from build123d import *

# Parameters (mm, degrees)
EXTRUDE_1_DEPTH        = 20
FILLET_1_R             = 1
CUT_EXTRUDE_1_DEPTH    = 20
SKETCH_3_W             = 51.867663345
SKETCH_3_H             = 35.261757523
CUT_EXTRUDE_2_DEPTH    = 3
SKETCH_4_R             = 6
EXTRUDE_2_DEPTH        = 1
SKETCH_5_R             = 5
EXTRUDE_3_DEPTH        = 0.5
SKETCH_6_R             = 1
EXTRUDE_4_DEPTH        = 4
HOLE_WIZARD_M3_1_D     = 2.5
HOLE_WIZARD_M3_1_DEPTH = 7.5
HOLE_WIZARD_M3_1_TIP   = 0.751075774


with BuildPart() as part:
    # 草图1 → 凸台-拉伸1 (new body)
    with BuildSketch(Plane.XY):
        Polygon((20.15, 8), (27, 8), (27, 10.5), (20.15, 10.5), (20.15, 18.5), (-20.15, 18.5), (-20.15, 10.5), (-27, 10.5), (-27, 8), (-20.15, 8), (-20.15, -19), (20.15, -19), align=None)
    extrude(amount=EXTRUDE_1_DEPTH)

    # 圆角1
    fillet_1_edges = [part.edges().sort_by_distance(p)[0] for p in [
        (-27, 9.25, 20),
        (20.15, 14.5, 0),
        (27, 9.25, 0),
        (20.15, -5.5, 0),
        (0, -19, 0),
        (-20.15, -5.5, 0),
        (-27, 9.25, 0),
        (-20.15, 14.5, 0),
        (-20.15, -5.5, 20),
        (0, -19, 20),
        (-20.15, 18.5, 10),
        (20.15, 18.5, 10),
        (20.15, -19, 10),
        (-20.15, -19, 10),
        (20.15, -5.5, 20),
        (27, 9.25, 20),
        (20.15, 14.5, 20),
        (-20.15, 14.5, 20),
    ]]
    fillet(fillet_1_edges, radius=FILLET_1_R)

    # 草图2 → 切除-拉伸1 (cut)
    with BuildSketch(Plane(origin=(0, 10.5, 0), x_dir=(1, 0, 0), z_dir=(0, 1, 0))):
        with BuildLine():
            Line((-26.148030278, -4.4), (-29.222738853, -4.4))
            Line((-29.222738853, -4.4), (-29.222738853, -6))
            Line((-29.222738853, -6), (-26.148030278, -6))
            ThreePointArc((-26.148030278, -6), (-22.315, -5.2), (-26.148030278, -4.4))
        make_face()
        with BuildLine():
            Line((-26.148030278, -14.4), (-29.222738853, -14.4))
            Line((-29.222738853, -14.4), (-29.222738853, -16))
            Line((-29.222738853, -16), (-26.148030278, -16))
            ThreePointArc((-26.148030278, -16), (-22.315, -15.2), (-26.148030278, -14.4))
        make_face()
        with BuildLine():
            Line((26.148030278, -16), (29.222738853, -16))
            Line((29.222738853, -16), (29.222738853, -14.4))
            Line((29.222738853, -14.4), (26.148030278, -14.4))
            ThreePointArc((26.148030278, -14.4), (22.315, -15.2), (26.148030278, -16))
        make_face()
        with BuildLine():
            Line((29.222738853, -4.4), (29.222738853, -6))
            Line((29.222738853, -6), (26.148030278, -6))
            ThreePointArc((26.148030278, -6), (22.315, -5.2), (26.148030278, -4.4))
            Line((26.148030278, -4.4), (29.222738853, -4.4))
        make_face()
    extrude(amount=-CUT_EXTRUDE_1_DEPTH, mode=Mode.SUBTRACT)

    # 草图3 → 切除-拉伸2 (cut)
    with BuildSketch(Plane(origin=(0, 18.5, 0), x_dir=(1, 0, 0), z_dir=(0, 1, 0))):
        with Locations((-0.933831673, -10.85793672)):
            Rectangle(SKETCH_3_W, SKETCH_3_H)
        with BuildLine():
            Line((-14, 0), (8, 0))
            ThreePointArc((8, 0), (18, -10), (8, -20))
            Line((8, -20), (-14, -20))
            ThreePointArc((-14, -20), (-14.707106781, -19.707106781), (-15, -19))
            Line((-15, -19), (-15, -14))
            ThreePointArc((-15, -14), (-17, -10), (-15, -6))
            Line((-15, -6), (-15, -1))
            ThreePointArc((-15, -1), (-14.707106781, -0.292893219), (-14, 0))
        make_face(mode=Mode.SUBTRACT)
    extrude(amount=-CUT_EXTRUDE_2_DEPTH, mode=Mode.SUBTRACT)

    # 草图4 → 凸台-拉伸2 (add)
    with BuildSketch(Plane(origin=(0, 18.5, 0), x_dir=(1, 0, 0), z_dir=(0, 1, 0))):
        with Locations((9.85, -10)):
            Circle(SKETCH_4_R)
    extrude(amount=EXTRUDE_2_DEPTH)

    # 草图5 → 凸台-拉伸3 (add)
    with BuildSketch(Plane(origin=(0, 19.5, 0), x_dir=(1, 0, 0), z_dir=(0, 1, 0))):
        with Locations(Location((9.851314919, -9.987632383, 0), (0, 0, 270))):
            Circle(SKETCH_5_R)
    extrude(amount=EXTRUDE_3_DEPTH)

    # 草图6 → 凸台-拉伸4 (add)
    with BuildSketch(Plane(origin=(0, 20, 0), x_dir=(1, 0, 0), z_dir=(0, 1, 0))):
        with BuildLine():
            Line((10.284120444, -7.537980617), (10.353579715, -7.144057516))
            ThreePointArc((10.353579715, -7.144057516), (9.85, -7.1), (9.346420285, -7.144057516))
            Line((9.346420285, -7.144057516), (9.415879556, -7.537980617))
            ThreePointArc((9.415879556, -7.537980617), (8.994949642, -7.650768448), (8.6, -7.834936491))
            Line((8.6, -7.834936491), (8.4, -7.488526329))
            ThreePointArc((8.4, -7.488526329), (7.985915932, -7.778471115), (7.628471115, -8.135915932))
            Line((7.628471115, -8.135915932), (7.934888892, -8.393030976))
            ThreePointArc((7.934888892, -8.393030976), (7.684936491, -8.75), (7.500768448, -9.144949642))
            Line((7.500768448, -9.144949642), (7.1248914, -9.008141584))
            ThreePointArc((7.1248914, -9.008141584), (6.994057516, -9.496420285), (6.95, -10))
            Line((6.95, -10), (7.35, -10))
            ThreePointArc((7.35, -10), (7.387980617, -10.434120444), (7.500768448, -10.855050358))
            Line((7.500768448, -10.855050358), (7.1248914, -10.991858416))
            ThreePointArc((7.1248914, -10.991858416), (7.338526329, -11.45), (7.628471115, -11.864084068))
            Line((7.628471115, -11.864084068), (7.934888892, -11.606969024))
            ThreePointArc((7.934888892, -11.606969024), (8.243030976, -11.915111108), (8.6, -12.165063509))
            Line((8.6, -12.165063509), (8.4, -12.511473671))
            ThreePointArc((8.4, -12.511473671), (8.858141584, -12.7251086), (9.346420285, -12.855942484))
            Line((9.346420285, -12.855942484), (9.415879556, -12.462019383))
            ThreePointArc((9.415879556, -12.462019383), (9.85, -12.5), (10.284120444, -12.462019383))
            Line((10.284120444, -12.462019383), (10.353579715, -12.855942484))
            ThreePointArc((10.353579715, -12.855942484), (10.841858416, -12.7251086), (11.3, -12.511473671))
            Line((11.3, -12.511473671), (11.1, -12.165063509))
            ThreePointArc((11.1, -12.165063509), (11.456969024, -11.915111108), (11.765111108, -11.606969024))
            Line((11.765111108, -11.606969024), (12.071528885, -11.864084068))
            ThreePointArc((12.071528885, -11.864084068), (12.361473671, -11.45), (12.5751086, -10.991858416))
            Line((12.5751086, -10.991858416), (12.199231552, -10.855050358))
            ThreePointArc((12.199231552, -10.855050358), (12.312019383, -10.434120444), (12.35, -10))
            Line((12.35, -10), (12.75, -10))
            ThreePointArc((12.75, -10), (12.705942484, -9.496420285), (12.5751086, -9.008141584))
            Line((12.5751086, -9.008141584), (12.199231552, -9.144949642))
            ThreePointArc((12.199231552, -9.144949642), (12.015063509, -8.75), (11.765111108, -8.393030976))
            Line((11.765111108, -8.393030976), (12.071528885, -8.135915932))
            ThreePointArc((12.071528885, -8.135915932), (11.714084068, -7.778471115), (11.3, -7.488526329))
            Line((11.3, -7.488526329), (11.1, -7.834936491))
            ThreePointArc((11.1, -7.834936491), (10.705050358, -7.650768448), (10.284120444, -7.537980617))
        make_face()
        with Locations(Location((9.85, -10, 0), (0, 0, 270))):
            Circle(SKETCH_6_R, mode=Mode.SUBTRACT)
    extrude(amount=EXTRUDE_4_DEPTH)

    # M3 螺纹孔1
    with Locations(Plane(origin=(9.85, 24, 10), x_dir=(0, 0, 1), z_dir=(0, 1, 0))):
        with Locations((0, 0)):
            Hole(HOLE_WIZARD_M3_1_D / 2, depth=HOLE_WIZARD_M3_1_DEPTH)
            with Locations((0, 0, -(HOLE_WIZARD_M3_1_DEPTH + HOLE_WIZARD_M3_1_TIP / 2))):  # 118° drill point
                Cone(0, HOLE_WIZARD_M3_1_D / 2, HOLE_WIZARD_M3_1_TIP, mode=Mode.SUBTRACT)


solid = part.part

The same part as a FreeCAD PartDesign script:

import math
import FreeCAD as App
import Part
import Sketcher
from FreeCAD import Vector
Q = App.Units.Quantity


def edges_at(feature, points):
    """Names of the edges that pass closest to the given points."""
    edges = feature.Shape.Edges
    near = lambda p: min(range(len(edges)), key=lambda i: edges[i].distToShape(Part.Vertex(*p))[0])
    return sorted({f"Edge{near(p) + 1}" for p in points})


def add_polygon(sketch, points):
    """Adds a closed chain of lines whose ends are joined by coincident constraints."""
    first, n = sketch.GeometryCount, len(points)
    for a, b in zip(points, points[1:] + points[:1]):
        sketch.addGeometry(Part.LineSegment(App.Vector(*a, 0), App.Vector(*b, 0)), False)
    for i in range(n):
        sketch.addConstraint(Sketcher.Constraint("Coincident", first + i, 2, first + (i + 1) % n, 1))

doc = App.newDocument("Part")
body = doc.addObject("PartDesign::Body", "Body")

# Sketch on XY plane
sketch1 = body.newObject("Sketcher::SketchObject", "Sketch")
sketch1.AttachmentSupport = (doc.getObject("XY_Plane"), [""])
sketch1.MapMode = "FlatFace"
add_polygon(sketch1, [(20.15, 8), (27, 8), (27, 10.5), (20.15, 10.5), (20.15, 18.5), (-20.15, 18.5), (-20.15, 10.5), (-27, 10.5), (-27, 8), (-20.15, 8), (-20.15, -19), (20.15, -19)])  # lines 0-11
sketch1.addConstraint(Sketcher.Constraint("Horizontal", 0))
sketch1.addConstraint(Sketcher.Constraint("Vertical", 1))
sketch1.addConstraint(Sketcher.Constraint("Horizontal", 2))
sketch1.addConstraint(Sketcher.Constraint("Vertical", 3))
sketch1.addConstraint(Sketcher.Constraint("Horizontal", 4))
sketch1.addConstraint(Sketcher.Constraint("Vertical", 5))
sketch1.addConstraint(Sketcher.Constraint("Horizontal", 6))
sketch1.addConstraint(Sketcher.Constraint("Vertical", 7))
sketch1.addConstraint(Sketcher.Constraint("Horizontal", 8))
sketch1.addConstraint(Sketcher.Constraint("Vertical", 9))
sketch1.addConstraint(Sketcher.Constraint("Horizontal", 10))
sketch1.addConstraint(Sketcher.Constraint("Vertical", 11))
sketch1.addConstraint(Sketcher.Constraint("Symmetric", 2, 2, 5, 2, -2))
sketch1.addConstraint(Sketcher.Constraint("Symmetric", 0, 2, 7, 2, -2))
sketch1.addConstraint(Sketcher.Constraint("Vertical", 5, 2, 8, 2))
sketch1.addConstraint(Sketcher.Constraint("Vertical", 3, 2, 10, 2))
sketch1.addConstraint(Sketcher.Constraint("DistanceY", 3, 1, 3, 2, 8.0))
sketch1.addConstraint(Sketcher.Constraint("DistanceY", 9, 2, 9, 1, 27.0))
sketch1.addConstraint(Sketcher.Constraint("DistanceX", 4, 2, 4, 1, 40.3))
sketch1.addConstraint(Sketcher.Constraint("DistanceY", 1, 1, 1, 2, 2.5))
sketch1.addConstraint(Sketcher.Constraint("DistanceX", -1, 1, 0, 2, 27.0))
sketch1.addConstraint(Sketcher.Constraint("DistanceY", -1, 1, 0, 2, 8.0))
pad1 = body.newObject("PartDesign::Pad", "Pad")
pad1.Profile = sketch1
pad1.Length = 20
doc.recompute()

fillet = body.newObject("PartDesign::Fillet", "Fillet")
fillet.Base = (pad1, edges_at(pad1, [
    (-27, 9.25, 20),
    (20.15, 14.5, 0),
    (27, 9.25, 0),
    (20.15, -5.5, 0),
    (0, -19, 0),
    (-20.15, -5.5, 0),
    (-27, 9.25, 0),
    (-20.15, 14.5, 0),
    (-20.15, -5.5, 20),
    (0, -19, 20),
    (-20.15, 18.5, 10),
    (20.15, 18.5, 10),
    (20.15, -19, 10),
    (-20.15, -19, 10),
    (20.15, -5.5, 20),
    (27, 9.25, 20),
    (20.15, 14.5, 20),
    (-20.15, 14.5, 20),
]))
fillet.Radius = 1

# Sketch on XZ plane
sketch2 = body.newObject("Sketcher::SketchObject", "Sketch001")
sketch2.AttachmentSupport = (doc.getObject("XZ_Plane"), [""])
sketch2.MapMode = "FlatFace"
sketch2.AttachmentOffset = App.Placement(Vector(0, 0, -10.5), App.Rotation())
sketch2.addGeometry(Part.LineSegment(Vector(-26.14803, 4.4, 0), Vector(-29.222739, 4.4, 0)), False)
sketch2.addGeometry(Part.LineSegment(Vector(-29.222739, 4.4, 0), Vector(-29.222739, 6, 0)), False)
sketch2.addGeometry(Part.LineSegment(Vector(-29.222739, 6, 0), Vector(-26.14803, 6, 0)), False)
sketch2.addGeometry(Part.ArcOfCircle(Part.Circle(Vector(-24.315, 5.2, 0), Vector(0, 0, 1), 2), math.radians(-156.421822), math.radians(156.421822)), False)
sketch2.addGeometry(Part.LineSegment(Vector(-26.14803, 14.4, 0), Vector(-29.222739, 14.4, 0)), False)
sketch2.addGeometry(Part.LineSegment(Vector(-29.222739, 14.4, 0), Vector(-29.222739, 16, 0)), False)
sketch2.addGeometry(Part.LineSegment(Vector(-29.222739, 16, 0), Vector(-26.14803, 16, 0)), False)
sketch2.addGeometry(Part.ArcOfCircle(Part.Circle(Vector(-24.315, 15.2, 0), Vector(0, 0, 1), 2), math.radians(-156.421822), math.radians(156.421822)), False)
sketch2.addGeometry(Part.LineSegment(Vector(26.14803, 16, 0), Vector(29.222739, 16, 0)), False)
sketch2.addGeometry(Part.LineSegment(Vector(29.222739, 16, 0), Vector(29.222739, 14.4, 0)), False)
sketch2.addGeometry(Part.LineSegment(Vector(29.222739, 14.4, 0), Vector(26.14803, 14.4, 0)), False)
sketch2.addGeometry(Part.ArcOfCircle(Part.Circle(Vector(24.315, 15.2, 0), Vector(0, 0, 1), 2), math.radians(23.578178), math.radians(336.421822)), False)
sketch2.addGeometry(Part.LineSegment(Vector(29.222739, 6, 0), Vector(29.222739, 4.4, 0)), False)
sketch2.addGeometry(Part.LineSegment(Vector(29.222739, 4.4, 0), Vector(26.14803, 4.4, 0)), False)
sketch2.addGeometry(Part.ArcOfCircle(Part.Circle(Vector(24.315, 5.2, 0), Vector(0, 0, 1), 2), math.radians(23.578178), math.radians(336.421822)), False)
sketch2.addGeometry(Part.LineSegment(Vector(26.14803, 6, 0), Vector(29.222739, 6, 0)), False)
sketch2.addConstraint(Sketcher.Constraint("Coincident", 0, 2, 1, 1))
sketch2.addConstraint(Sketcher.Constraint("Coincident", 1, 2, 2, 1))
sketch2.addConstraint(Sketcher.Constraint("Coincident", 2, 2, 3, 2))
sketch2.addConstraint(Sketcher.Constraint("Coincident", 3, 1, 0, 1))
sketch2.addConstraint(Sketcher.Constraint("Coincident", 4, 2, 5, 1))
sketch2.addConstraint(Sketcher.Constraint("Coincident", 5, 2, 6, 1))
sketch2.addConstraint(Sketcher.Constraint("Coincident", 6, 2, 7, 2))
sketch2.addConstraint(Sketcher.Constraint("Coincident", 7, 1, 4, 1))
sketch2.addConstraint(Sketcher.Constraint("Coincident", 8, 2, 9, 1))
sketch2.addConstraint(Sketcher.Constraint("Coincident", 9, 2, 10, 1))
sketch2.addConstraint(Sketcher.Constraint("Coincident", 10, 2, 11, 2))
sketch2.addConstraint(Sketcher.Constraint("Coincident", 11, 1, 8, 1))
sketch2.addConstraint(Sketcher.Constraint("Coincident", 12, 2, 13, 1))
sketch2.addConstraint(Sketcher.Constraint("Coincident", 13, 2, 14, 2))
sketch2.addConstraint(Sketcher.Constraint("Coincident", 14, 1, 15, 1))
sketch2.addConstraint(Sketcher.Constraint("Coincident", 15, 2, 12, 1))
sketch2.addConstraint(Sketcher.Constraint("Horizontal", 0))
sketch2.addConstraint(Sketcher.Constraint("Vertical", 1))
sketch2.addConstraint(Sketcher.Constraint("Horizontal", 2))
sketch2.addConstraint(Sketcher.Constraint("Horizontal", 4))
sketch2.addConstraint(Sketcher.Constraint("Vertical", 5))
sketch2.addConstraint(Sketcher.Constraint("Horizontal", 6))
sketch2.addConstraint(Sketcher.Constraint("Horizontal", 8))
sketch2.addConstraint(Sketcher.Constraint("Vertical", 9))
sketch2.addConstraint(Sketcher.Constraint("Horizontal", 10))
sketch2.addConstraint(Sketcher.Constraint("Vertical", 12))
sketch2.addConstraint(Sketcher.Constraint("Horizontal", 13))
sketch2.addConstraint(Sketcher.Constraint("Horizontal", 15))
sketch2.addConstraint(Sketcher.Constraint("Equal", 3, 7))
sketch2.addConstraint(Sketcher.Constraint("Equal", 7, 11))
sketch2.addConstraint(Sketcher.Constraint("Equal", 11, 14))
sketch2.addConstraint(Sketcher.Constraint("Symmetric", 7, 3, 11, 3, -2))
sketch2.addConstraint(Sketcher.Constraint("Symmetric", 3, 3, 14, 3, -2))
sketch2.addConstraint(Sketcher.Constraint("Symmetric", 5, 2, 8, 2, -2))
sketch2.addConstraint(Sketcher.Constraint("Symmetric", 0, 2, 12, 2, -2))
sketch2.addConstraint(Sketcher.Constraint("Horizontal", 7, 1, 9, 2))
sketch2.addConstraint(Sketcher.Constraint("Horizontal", 2, 2, 14, 1))
sketch2.addConstraint(Sketcher.Constraint("Vertical", 3, 3, 7, 3))
sketch2.addConstraint(Sketcher.Constraint("Vertical", 2, 2, 3, 1))
sketch2.addConstraint(Sketcher.Constraint("Vertical", 1, 2, 4, 2))
sketch2.addConstraint(Sketcher.Constraint("Vertical", 3, 1, 6, 2))
sketch2.addConstraint(Sketcher.Constraint("Vertical", 6, 2, 7, 1))
sketch2.addConstraint(Sketcher.Constraint("Radius", 3, 2.0))
sketch2.addConstraint(Sketcher.Constraint("DistanceY", 1, 1, 1, 2, 1.6))
sketch2.addConstraint(Sketcher.Constraint("DistanceY", -1, 1, 1, 2, 6.0))
sketch2.addConstraint(Sketcher.Constraint("DistanceY", -1, 1, 5, 2, 16.0))
sketch2.addConstraint(Sketcher.Constraint("DistanceX", 7, 3, 11, 3, 48.63))
sketch2.addConstraint(Sketcher.Constraint("DistanceX", 0, 2, 0, 1, 3.074709))
pocket1 = body.newObject("PartDesign::Pocket", "Pocket")
pocket1.Profile = sketch2
pocket1.Length = 20
pocket1.Reversed = True

# Sketch on XZ plane
sketch3 = body.newObject("Sketcher::SketchObject", "Sketch002")
sketch3.AttachmentSupport = (doc.getObject("XZ_Plane"), [""])
sketch3.MapMode = "FlatFace"
sketch3.AttachmentOffset = App.Placement(Vector(0, 0, -18.5), App.Rotation())
add_polygon(sketch3, [(-26.867663, -6.772942), (-26.867663, 28.488815), (25, 28.488815), (25, -6.772942)])  # lines 0-3
sketch3.addGeometry(Part.ArcOfCircle(Part.Circle(Vector(-14, 1, 0), Vector(0, 0, 1), 1), math.radians(-180), math.radians(-90)), False)  # 4
sketch3.addGeometry(Part.LineSegment(Vector(-14, 0, 0), Vector(8, 0, 0)), False)  # 5
sketch3.addGeometry(Part.ArcOfCircle(Part.Circle(Vector(8, 10, 0), Vector(0, 0, 1), 10), math.radians(-90), math.radians(90)), False)  # 6
sketch3.addGeometry(Part.LineSegment(Vector(8, 20, 0), Vector(-14, 20, 0)), False)  # 7
sketch3.addGeometry(Part.ArcOfCircle(Part.Circle(Vector(-14, 19, 0), Vector(0, 0, 1), 1), math.radians(90), math.radians(180)), False)  # 8
sketch3.addGeometry(Part.LineSegment(Vector(-15, 19, 0), Vector(-15, 14, 0)), False)  # 9
sketch3.addGeometry(Part.ArcOfCircle(Part.Circle(Vector(-12, 10, 0), Vector(0, 0, 1), 5), math.radians(126.869898), math.radians(233.130102)), False)  # 10
sketch3.addGeometry(Part.LineSegment(Vector(-15, 6, 0), Vector(-15, 1, 0)), False)  # 11
sketch3.addConstraint(Sketcher.Constraint("Tangent", 4, 2, 5, 1))
sketch3.addConstraint(Sketcher.Constraint("Tangent", 5, 2, 6, 1))
sketch3.addConstraint(Sketcher.Constraint("Tangent", 6, 2, 7, 1))
sketch3.addConstraint(Sketcher.Constraint("Tangent", 7, 2, 8, 1))
sketch3.addConstraint(Sketcher.Constraint("Tangent", 8, 2, 9, 1))
sketch3.addConstraint(Sketcher.Constraint("Coincident", 9, 2, 10, 1))
sketch3.addConstraint(Sketcher.Constraint("Coincident", 10, 2, 11, 1))
sketch3.addConstraint(Sketcher.Constraint("Tangent", 11, 2, 4, 1))
sketch3.addConstraint(Sketcher.Constraint("Vertical", 0))
sketch3.addConstraint(Sketcher.Constraint("Horizontal", 1))
sketch3.addConstraint(Sketcher.Constraint("Vertical", 2))
sketch3.addConstraint(Sketcher.Constraint("Horizontal", 3))
sketch3.addConstraint(Sketcher.Constraint("Horizontal", 5))
sketch3.addConstraint(Sketcher.Constraint("Horizontal", 7))
sketch3.addConstraint(Sketcher.Constraint("Vertical", 9))
sketch3.addConstraint(Sketcher.Constraint("Vertical", 11))
sketch3.addConstraint(Sketcher.Constraint("Equal", 4, 8))
sketch3.addConstraint(Sketcher.Constraint("PointOnObject", 4, 2, -1))
sketch3.addConstraint(Sketcher.Constraint("Horizontal", 6, 3, 10, 3))
sketch3.addConstraint(Sketcher.Constraint("Vertical", 4, 3, 8, 3))
sketch3.addConstraint(Sketcher.Constraint("Radius", 4, 1.0))
sketch3.addConstraint(Sketcher.Constraint("Radius", 6, 10.0))
sketch3.addConstraint(Sketcher.Constraint("Radius", 10, 5.0))
sketch3.addConstraint(Sketcher.Constraint("DistanceX", 5, 1, 5, 2, 22.0))
sketch3.addConstraint(Sketcher.Constraint("DistanceY", 9, 2, 9, 1, 5.0))
sketch3.addConstraint(Sketcher.Constraint("DistanceX", 4, 3, -1, 1, 14.0))
sketch3.addConstraint(Sketcher.Constraint("DistanceX", -1, 1, 1, 2, 25.0))
sketch3.addConstraint(Sketcher.Constraint("DistanceX", 1, 1, 1, 2, 51.867663))
sketch3.addConstraint(Sketcher.Constraint("DistanceY", 0, 1, 0, 2, 35.261758))
sketch3.addConstraint(Sketcher.Constraint("DistanceY", -1, 1, 0, 2, 28.488815))
pocket2 = body.newObject("PartDesign::Pocket", "Pocket001")
pocket2.Profile = sketch3
pocket2.Length = 3
pocket2.Reversed = True

# Sketch on XZ plane
sketch4 = body.newObject("Sketcher::SketchObject", "Sketch003")
sketch4.AttachmentSupport = (doc.getObject("XZ_Plane"), [""])
sketch4.MapMode = "FlatFace"
sketch4.AttachmentOffset = App.Placement(Vector(0, 0, -18.5), App.Rotation())
sketch4.addGeometry(Part.Circle(Vector(9.85, 10, 0), Vector(0, 0, 1), 6), False)
sketch4.addConstraint(Sketcher.Constraint("Diameter", 0, 12.0))
sketch4.addConstraint(Sketcher.Constraint("DistanceY", -1, 1, 0, 3, 10.0))
sketch4.addConstraint(Sketcher.Constraint("DistanceX", -1, 1, 0, 3, 9.85))
pad2 = body.newObject("PartDesign::Pad", "Pad001")
pad2.Profile = sketch4
pad2.Length = 1
pad2.Reversed = True

# Sketch on XZ plane
sketch5 = body.newObject("Sketcher::SketchObject", "Sketch004")
sketch5.AttachmentSupport = (doc.getObject("XZ_Plane"), [""])
sketch5.MapMode = "FlatFace"
sketch5.AttachmentOffset = App.Placement(Vector(0, 0, -19.5), App.Rotation())
sketch5.addGeometry(Part.Circle(Vector(9.851315, 9.987632, 0), Vector(0, 0, 1), 5), False)
sketch5.addConstraint(Sketcher.Constraint("Diameter", 0, 10.0))
sketch5.addConstraint(Sketcher.Constraint("DistanceX", -1, 1, 0, 3, 9.851315))
sketch5.addConstraint(Sketcher.Constraint("DistanceY", -1, 1, 0, 3, 9.987632))
pad3 = body.newObject("PartDesign::Pad", "Pad002")
pad3.Profile = sketch5
pad3.Length = 0.5
pad3.Reversed = True

# Sketch on XZ plane
sketch6 = body.newObject("Sketcher::SketchObject", "Sketch005")
sketch6.AttachmentSupport = (doc.getObject("XZ_Plane"), [""])
sketch6.MapMode = "FlatFace"
sketch6.AttachmentOffset = App.Placement(Vector(0, 0, -20), App.Rotation())
sketch6.addGeometry(Part.LineSegment(Vector(10.28412, 7.537981, 0), Vector(10.35358, 7.144058, 0)), False)
sketch6.addGeometry(Part.ArcOfCircle(Part.Circle(Vector(9.85, 10, 0), Vector(0, 0, 1), 2.9), math.radians(-100), math.radians(-80)), False)
sketch6.addGeometry(Part.LineSegment(Vector(9.34642, 7.144058, 0), Vector(9.41588, 7.537981, 0)), False)
sketch6.addGeometry(Part.ArcOfCircle(Part.Circle(Vector(9.85, 10, 0), Vector(0, 0, 1), 2.5), math.radians(-120), math.radians(-100)), False)
sketch6.addGeometry(Part.LineSegment(Vector(8.6, 7.834936, 0), Vector(8.4, 7.488526, 0)), False)
sketch6.addGeometry(Part.ArcOfCircle(Part.Circle(Vector(9.85, 10, 0), Vector(0, 0, 1), 2.9), math.radians(-140), math.radians(-120)), False)
sketch6.addGeometry(Part.LineSegment(Vector(7.628471, 8.135916, 0), Vector(7.934889, 8.393031, 0)), False)
sketch6.addGeometry(Part.ArcOfCircle(Part.Circle(Vector(9.85, 10, 0), Vector(0, 0, 1), 2.5), math.radians(-160), math.radians(-140)), False)
sketch6.addGeometry(Part.LineSegment(Vector(7.500768, 9.14495, 0), Vector(7.124891, 9.008142, 0)), False)
sketch6.addGeometry(Part.ArcOfCircle(Part.Circle(Vector(9.85, 10, 0), Vector(0, 0, 1), 2.9), math.radians(180), math.radians(200)), False)
sketch6.addGeometry(Part.LineSegment(Vector(6.95, 10, 0), Vector(7.35, 10, 0)), False)
sketch6.addGeometry(Part.ArcOfCircle(Part.Circle(Vector(9.85, 10, 0), Vector(0, 0, 1), 2.5), math.radians(160), math.radians(180)), False)
sketch6.addGeometry(Part.LineSegment(Vector(7.500768, 10.85505, 0), Vector(7.124891, 10.991858, 0)), False)
sketch6.addGeometry(Part.ArcOfCircle(Part.Circle(Vector(9.85, 10, 0), Vector(0, 0, 1), 2.9), math.radians(140), math.radians(160)), False)
sketch6.addGeometry(Part.LineSegment(Vector(7.628471, 11.864084, 0), Vector(7.934889, 11.606969, 0)), False)
sketch6.addGeometry(Part.ArcOfCircle(Part.Circle(Vector(9.85, 10, 0), Vector(0, 0, 1), 2.5), math.radians(120), math.radians(140)), False)
sketch6.addGeometry(Part.LineSegment(Vector(8.6, 12.165064, 0), Vector(8.4, 12.511474, 0)), False)
sketch6.addGeometry(Part.ArcOfCircle(Part.Circle(Vector(9.85, 10, 0), Vector(0, 0, 1), 2.9), math.radians(100), math.radians(120)), False)
sketch6.addGeometry(Part.LineSegment(Vector(9.34642, 12.855942, 0), Vector(9.41588, 12.462019, 0)), False)
sketch6.addGeometry(Part.ArcOfCircle(Part.Circle(Vector(9.85, 10, 0), Vector(0, 0, 1), 2.5), math.radians(80), math.radians(100)), False)
sketch6.addGeometry(Part.LineSegment(Vector(10.28412, 12.462019, 0), Vector(10.35358, 12.855942, 0)), False)
sketch6.addGeometry(Part.ArcOfCircle(Part.Circle(Vector(9.85, 10, 0), Vector(0, 0, 1), 2.9), math.radians(60), math.radians(80)), False)
sketch6.addGeometry(Part.LineSegment(Vector(11.3, 12.511474, 0), Vector(11.1, 12.165064, 0)), False)
sketch6.addGeometry(Part.ArcOfCircle(Part.Circle(Vector(9.85, 10, 0), Vector(0, 0, 1), 2.5), math.radians(40), math.radians(60)), False)
sketch6.addGeometry(Part.LineSegment(Vector(11.765111, 11.606969, 0), Vector(12.071529, 11.864084, 0)), False)
sketch6.addGeometry(Part.ArcOfCircle(Part.Circle(Vector(9.85, 10, 0), Vector(0, 0, 1), 2.9), math.radians(20), math.radians(40)), False)
sketch6.addGeometry(Part.LineSegment(Vector(12.575109, 10.991858, 0), Vector(12.199232, 10.85505, 0)), False)
sketch6.addGeometry(Part.ArcOfCircle(Part.Circle(Vector(9.85, 10, 0), Vector(0, 0, 1), 2.5), math.radians(0), math.radians(20)), False)
sketch6.addGeometry(Part.LineSegment(Vector(12.35, 10, 0), Vector(12.75, 10, 0)), False)
sketch6.addGeometry(Part.ArcOfCircle(Part.Circle(Vector(9.85, 10, 0), Vector(0, 0, 1), 2.9), math.radians(-20), math.radians(0)), False)
sketch6.addGeometry(Part.LineSegment(Vector(12.575109, 9.008142, 0), Vector(12.199232, 9.14495, 0)), False)
sketch6.addGeometry(Part.ArcOfCircle(Part.Circle(Vector(9.85, 10, 0), Vector(0, 0, 1), 2.5), math.radians(-40), math.radians(-20)), False)
sketch6.addGeometry(Part.LineSegment(Vector(11.765111, 8.393031, 0), Vector(12.071529, 8.135916, 0)), False)
sketch6.addGeometry(Part.ArcOfCircle(Part.Circle(Vector(9.85, 10, 0), Vector(0, 0, 1), 2.9), math.radians(-60), math.radians(-40)), False)
sketch6.addGeometry(Part.LineSegment(Vector(11.3, 7.488526, 0), Vector(11.1, 7.834936, 0)), False)
sketch6.addGeometry(Part.ArcOfCircle(Part.Circle(Vector(9.85, 10, 0), Vector(0, 0, 1), 2.5), math.radians(-80), math.radians(-60)), False)
sketch6.addGeometry(Part.Circle(Vector(9.85, 10, 0), Vector(0, 0, 1), 1), False)
sketch6.addConstraint(Sketcher.Constraint("Coincident", 0, 2, 1, 2))
sketch6.addConstraint(Sketcher.Constraint("Coincident", 1, 1, 2, 1))
sketch6.addConstraint(Sketcher.Constraint("Coincident", 2, 2, 3, 2))
sketch6.addConstraint(Sketcher.Constraint("Coincident", 3, 1, 4, 1))
sketch6.addConstraint(Sketcher.Constraint("Coincident", 4, 2, 5, 2))
sketch6.addConstraint(Sketcher.Constraint("Coincident", 5, 1, 6, 1))
sketch6.addConstraint(Sketcher.Constraint("Coincident", 6, 2, 7, 2))
sketch6.addConstraint(Sketcher.Constraint("Coincident", 7, 1, 8, 1))
sketch6.addConstraint(Sketcher.Constraint("Coincident", 8, 2, 9, 2))
sketch6.addConstraint(Sketcher.Constraint("Coincident", 9, 1, 10, 1))
sketch6.addConstraint(Sketcher.Constraint("Coincident", 10, 2, 11, 2))
sketch6.addConstraint(Sketcher.Constraint("Coincident", 11, 1, 12, 1))
sketch6.addConstraint(Sketcher.Constraint("Coincident", 12, 2, 13, 2))
sketch6.addConstraint(Sketcher.Constraint("Coincident", 13, 1, 14, 1))
sketch6.addConstraint(Sketcher.Constraint("Coincident", 14, 2, 15, 2))
sketch6.addConstraint(Sketcher.Constraint("Coincident", 15, 1, 16, 1))
sketch6.addConstraint(Sketcher.Constraint("Coincident", 16, 2, 17, 2))
sketch6.addConstraint(Sketcher.Constraint("Coincident", 17, 1, 18, 1))
sketch6.addConstraint(Sketcher.Constraint("Coincident", 18, 2, 19, 2))
sketch6.addConstraint(Sketcher.Constraint("Coincident", 19, 1, 20, 1))
sketch6.addConstraint(Sketcher.Constraint("Coincident", 20, 2, 21, 2))
sketch6.addConstraint(Sketcher.Constraint("Coincident", 21, 1, 22, 1))
sketch6.addConstraint(Sketcher.Constraint("Coincident", 22, 2, 23, 2))
sketch6.addConstraint(Sketcher.Constraint("Coincident", 23, 1, 24, 1))
sketch6.addConstraint(Sketcher.Constraint("Coincident", 24, 2, 25, 2))
sketch6.addConstraint(Sketcher.Constraint("Coincident", 25, 1, 26, 1))
sketch6.addConstraint(Sketcher.Constraint("Coincident", 26, 2, 27, 2))
sketch6.addConstraint(Sketcher.Constraint("Coincident", 27, 1, 28, 1))
sketch6.addConstraint(Sketcher.Constraint("Coincident", 28, 2, 29, 2))
sketch6.addConstraint(Sketcher.Constraint("Coincident", 29, 1, 30, 1))
sketch6.addConstraint(Sketcher.Constraint("Coincident", 30, 2, 31, 2))
sketch6.addConstraint(Sketcher.Constraint("Coincident", 31, 1, 32, 1))
sketch6.addConstraint(Sketcher.Constraint("Coincident", 32, 2, 33, 2))
sketch6.addConstraint(Sketcher.Constraint("Coincident", 33, 1, 34, 1))
sketch6.addConstraint(Sketcher.Constraint("Coincident", 34, 2, 35, 2))
sketch6.addConstraint(Sketcher.Constraint("Coincident", 35, 1, 0, 1))
sketch6.addConstraint(Sketcher.Constraint("Horizontal", 10))
sketch6.addConstraint(Sketcher.Constraint("Horizontal", 28))
sketch6.addConstraint(Sketcher.Constraint("Coincident", 3, 3, 1, 3))
sketch6.addConstraint(Sketcher.Constraint("Coincident", 5, 3, 1, 3))
sketch6.addConstraint(Sketcher.Constraint("Coincident", 7, 3, 1, 3))
sketch6.addConstraint(Sketcher.Constraint("Coincident", 9, 3, 1, 3))
sketch6.addConstraint(Sketcher.Constraint("Coincident", 11, 3, 1, 3))
sketch6.addConstraint(Sketcher.Constraint("Coincident", 13, 3, 1, 3))
sketch6.addConstraint(Sketcher.Constraint("Coincident", 15, 3, 1, 3))
sketch6.addConstraint(Sketcher.Constraint("Coincident", 17, 3, 1, 3))
sketch6.addConstraint(Sketcher.Constraint("Coincident", 19, 3, 1, 3))
sketch6.addConstraint(Sketcher.Constraint("Coincident", 21, 3, 1, 3))
sketch6.addConstraint(Sketcher.Constraint("Coincident", 23, 3, 1, 3))
sketch6.addConstraint(Sketcher.Constraint("Coincident", 25, 3, 1, 3))
sketch6.addConstraint(Sketcher.Constraint("Coincident", 27, 3, 1, 3))
sketch6.addConstraint(Sketcher.Constraint("Coincident", 29, 3, 1, 3))
sketch6.addConstraint(Sketcher.Constraint("Coincident", 31, 3, 1, 3))
sketch6.addConstraint(Sketcher.Constraint("Coincident", 33, 3, 1, 3))
sketch6.addConstraint(Sketcher.Constraint("Coincident", 35, 3, 1, 3))
sketch6.addConstraint(Sketcher.Constraint("Coincident", 36, 3, 1, 3))
sketch6.addConstraint(Sketcher.Constraint("Equal", 1, 5))
sketch6.addConstraint(Sketcher.Constraint("Equal", 3, 7))
sketch6.addConstraint(Sketcher.Constraint("Equal", 5, 9))
sketch6.addConstraint(Sketcher.Constraint("Equal", 7, 11))
sketch6.addConstraint(Sketcher.Constraint("Equal", 9, 13))
sketch6.addConstraint(Sketcher.Constraint("Equal", 11, 15))
sketch6.addConstraint(Sketcher.Constraint("Equal", 13, 17))
sketch6.addConstraint(Sketcher.Constraint("Equal", 15, 19))
sketch6.addConstraint(Sketcher.Constraint("Equal", 17, 21))
sketch6.addConstraint(Sketcher.Constraint("Equal", 19, 23))
sketch6.addConstraint(Sketcher.Constraint("Equal", 21, 25))
sketch6.addConstraint(Sketcher.Constraint("Equal", 23, 27))
sketch6.addConstraint(Sketcher.Constraint("Equal", 25, 29))
sketch6.addConstraint(Sketcher.Constraint("Equal", 27, 31))
sketch6.addConstraint(Sketcher.Constraint("Equal", 29, 33))
sketch6.addConstraint(Sketcher.Constraint("Equal", 31, 35))
sketch6.addConstraint(Sketcher.Constraint("Parallel", 0, 18))
sketch6.addConstraint(Sketcher.Constraint("Parallel", 2, 20))
sketch6.addConstraint(Sketcher.Constraint("Parallel", 4, 22))
sketch6.addConstraint(Sketcher.Constraint("Parallel", 6, 24))
sketch6.addConstraint(Sketcher.Constraint("Parallel", 8, 26))
sketch6.addConstraint(Sketcher.Constraint("Parallel", 12, 30))
sketch6.addConstraint(Sketcher.Constraint("Parallel", 14, 32))
sketch6.addConstraint(Sketcher.Constraint("Parallel", 16, 34))
sketch6.addConstraint(Sketcher.Constraint("Horizontal", 0, 2, 1, 1))
sketch6.addConstraint(Sketcher.Constraint("Horizontal", 36, 3, 9, 1))
sketch6.addConstraint(Sketcher.Constraint("Horizontal", 18, 2, 19, 1))
sketch6.addConstraint(Sketcher.Constraint("Horizontal", 17, 1, 20, 2))
sketch6.addConstraint(Sketcher.Constraint("Horizontal", 16, 2, 21, 1))
sketch6.addConstraint(Sketcher.Constraint("Horizontal", 15, 1, 22, 2))
sketch6.addConstraint(Sketcher.Constraint("Horizontal", 14, 2, 23, 1))
sketch6.addConstraint(Sketcher.Constraint("Horizontal", 13, 1, 24, 2))
sketch6.addConstraint(Sketcher.Constraint("Horizontal", 12, 2, 25, 1))
sketch6.addConstraint(Sketcher.Constraint("Horizontal", 11, 1, 26, 2))
sketch6.addConstraint(Sketcher.Constraint("Horizontal", 10, 2, 27, 1))
sketch6.addConstraint(Sketcher.Constraint("Horizontal", 8, 2, 29, 1))
sketch6.addConstraint(Sketcher.Constraint("Horizontal", 6, 2, 31, 1))
sketch6.addConstraint(Sketcher.Constraint("Horizontal", 4, 2, 33, 1))
sketch6.addConstraint(Sketcher.Constraint("Vertical", 7, 1, 11, 1))
sketch6.addConstraint(Sketcher.Constraint("Vertical", 5, 1, 13, 1))
sketch6.addConstraint(Sketcher.Constraint("Vertical", 3, 1, 15, 1))
sketch6.addConstraint(Sketcher.Constraint("Vertical", 1, 1, 17, 1))
sketch6.addConstraint(Sketcher.Constraint("Diameter", 36, 2.0))
sketch6.addConstraint(Sketcher.Constraint("Radius", 1, 2.9))
sketch6.addConstraint(Sketcher.Constraint("Radius", 3, 2.5))
sketch6.addConstraint(Sketcher.Constraint("Angle", 0, Q("-80 deg")))
sketch6.addConstraint(Sketcher.Constraint("Angle", 4, Q("-120 deg")))
sketch6.addConstraint(Sketcher.Constraint("Angle", 6, Q("40 deg")))
sketch6.addConstraint(Sketcher.Constraint("Angle", 8, Q("-160 deg")))
sketch6.addConstraint(Sketcher.Constraint("DistanceY", -1, 1, 1, 3, 10.0))
sketch6.addConstraint(Sketcher.Constraint("DistanceX", -1, 1, 3, 1, 8.6))
sketch6.addConstraint(Sketcher.Constraint("DistanceX", -1, 1, 21, 1, 11.3))
sketch6.addConstraint(Sketcher.Constraint("DistanceX", 2, 2, 0, 2, 0.9377))
sketch6.addConstraint(Sketcher.Constraint("DistanceY", 7, 1, 11, 1, 1.710101))
sketch6.addConstraint(Sketcher.Constraint("DistanceX", -1, 1, 5, 1, 7.628471))
pad4 = body.newObject("PartDesign::Pad", "Pad003")
pad4.Profile = sketch6
pad4.Length = 4
pad4.Reversed = True

# Sketch on XZ plane
sketch7 = body.newObject("Sketcher::SketchObject", "Sketch006")
sketch7.AttachmentSupport = (doc.getObject("XZ_Plane"), [""])
sketch7.MapMode = "FlatFace"
sketch7.AttachmentOffset = App.Placement(Vector(0, 0, -24), App.Rotation())
sketch7.addGeometry(Part.Circle(Vector(9.85, 10, 0), Vector(0, 0, 1), 1.25), False)
sketch7.addConstraint(Sketcher.Constraint("Diameter", 0, 2.5))
sketch7.addConstraint(Sketcher.Constraint("DistanceY", -1, 1, 0, 3, 10.0))
sketch7.addConstraint(Sketcher.Constraint("DistanceX", -1, 1, 0, 3, 9.85))
doc.recompute()
hole = body.newObject("PartDesign::Hole", "Hole")
hole.Profile = sketch7
hole.ThreadType = "None"
hole.Diameter = 2.5
hole.DepthType = "Dimension"
hole.Depth = 7.5
hole.DrillPoint = "Angled"
hole.DrillPointAngle = 118
hole.Reversed = True

doc.recompute()
